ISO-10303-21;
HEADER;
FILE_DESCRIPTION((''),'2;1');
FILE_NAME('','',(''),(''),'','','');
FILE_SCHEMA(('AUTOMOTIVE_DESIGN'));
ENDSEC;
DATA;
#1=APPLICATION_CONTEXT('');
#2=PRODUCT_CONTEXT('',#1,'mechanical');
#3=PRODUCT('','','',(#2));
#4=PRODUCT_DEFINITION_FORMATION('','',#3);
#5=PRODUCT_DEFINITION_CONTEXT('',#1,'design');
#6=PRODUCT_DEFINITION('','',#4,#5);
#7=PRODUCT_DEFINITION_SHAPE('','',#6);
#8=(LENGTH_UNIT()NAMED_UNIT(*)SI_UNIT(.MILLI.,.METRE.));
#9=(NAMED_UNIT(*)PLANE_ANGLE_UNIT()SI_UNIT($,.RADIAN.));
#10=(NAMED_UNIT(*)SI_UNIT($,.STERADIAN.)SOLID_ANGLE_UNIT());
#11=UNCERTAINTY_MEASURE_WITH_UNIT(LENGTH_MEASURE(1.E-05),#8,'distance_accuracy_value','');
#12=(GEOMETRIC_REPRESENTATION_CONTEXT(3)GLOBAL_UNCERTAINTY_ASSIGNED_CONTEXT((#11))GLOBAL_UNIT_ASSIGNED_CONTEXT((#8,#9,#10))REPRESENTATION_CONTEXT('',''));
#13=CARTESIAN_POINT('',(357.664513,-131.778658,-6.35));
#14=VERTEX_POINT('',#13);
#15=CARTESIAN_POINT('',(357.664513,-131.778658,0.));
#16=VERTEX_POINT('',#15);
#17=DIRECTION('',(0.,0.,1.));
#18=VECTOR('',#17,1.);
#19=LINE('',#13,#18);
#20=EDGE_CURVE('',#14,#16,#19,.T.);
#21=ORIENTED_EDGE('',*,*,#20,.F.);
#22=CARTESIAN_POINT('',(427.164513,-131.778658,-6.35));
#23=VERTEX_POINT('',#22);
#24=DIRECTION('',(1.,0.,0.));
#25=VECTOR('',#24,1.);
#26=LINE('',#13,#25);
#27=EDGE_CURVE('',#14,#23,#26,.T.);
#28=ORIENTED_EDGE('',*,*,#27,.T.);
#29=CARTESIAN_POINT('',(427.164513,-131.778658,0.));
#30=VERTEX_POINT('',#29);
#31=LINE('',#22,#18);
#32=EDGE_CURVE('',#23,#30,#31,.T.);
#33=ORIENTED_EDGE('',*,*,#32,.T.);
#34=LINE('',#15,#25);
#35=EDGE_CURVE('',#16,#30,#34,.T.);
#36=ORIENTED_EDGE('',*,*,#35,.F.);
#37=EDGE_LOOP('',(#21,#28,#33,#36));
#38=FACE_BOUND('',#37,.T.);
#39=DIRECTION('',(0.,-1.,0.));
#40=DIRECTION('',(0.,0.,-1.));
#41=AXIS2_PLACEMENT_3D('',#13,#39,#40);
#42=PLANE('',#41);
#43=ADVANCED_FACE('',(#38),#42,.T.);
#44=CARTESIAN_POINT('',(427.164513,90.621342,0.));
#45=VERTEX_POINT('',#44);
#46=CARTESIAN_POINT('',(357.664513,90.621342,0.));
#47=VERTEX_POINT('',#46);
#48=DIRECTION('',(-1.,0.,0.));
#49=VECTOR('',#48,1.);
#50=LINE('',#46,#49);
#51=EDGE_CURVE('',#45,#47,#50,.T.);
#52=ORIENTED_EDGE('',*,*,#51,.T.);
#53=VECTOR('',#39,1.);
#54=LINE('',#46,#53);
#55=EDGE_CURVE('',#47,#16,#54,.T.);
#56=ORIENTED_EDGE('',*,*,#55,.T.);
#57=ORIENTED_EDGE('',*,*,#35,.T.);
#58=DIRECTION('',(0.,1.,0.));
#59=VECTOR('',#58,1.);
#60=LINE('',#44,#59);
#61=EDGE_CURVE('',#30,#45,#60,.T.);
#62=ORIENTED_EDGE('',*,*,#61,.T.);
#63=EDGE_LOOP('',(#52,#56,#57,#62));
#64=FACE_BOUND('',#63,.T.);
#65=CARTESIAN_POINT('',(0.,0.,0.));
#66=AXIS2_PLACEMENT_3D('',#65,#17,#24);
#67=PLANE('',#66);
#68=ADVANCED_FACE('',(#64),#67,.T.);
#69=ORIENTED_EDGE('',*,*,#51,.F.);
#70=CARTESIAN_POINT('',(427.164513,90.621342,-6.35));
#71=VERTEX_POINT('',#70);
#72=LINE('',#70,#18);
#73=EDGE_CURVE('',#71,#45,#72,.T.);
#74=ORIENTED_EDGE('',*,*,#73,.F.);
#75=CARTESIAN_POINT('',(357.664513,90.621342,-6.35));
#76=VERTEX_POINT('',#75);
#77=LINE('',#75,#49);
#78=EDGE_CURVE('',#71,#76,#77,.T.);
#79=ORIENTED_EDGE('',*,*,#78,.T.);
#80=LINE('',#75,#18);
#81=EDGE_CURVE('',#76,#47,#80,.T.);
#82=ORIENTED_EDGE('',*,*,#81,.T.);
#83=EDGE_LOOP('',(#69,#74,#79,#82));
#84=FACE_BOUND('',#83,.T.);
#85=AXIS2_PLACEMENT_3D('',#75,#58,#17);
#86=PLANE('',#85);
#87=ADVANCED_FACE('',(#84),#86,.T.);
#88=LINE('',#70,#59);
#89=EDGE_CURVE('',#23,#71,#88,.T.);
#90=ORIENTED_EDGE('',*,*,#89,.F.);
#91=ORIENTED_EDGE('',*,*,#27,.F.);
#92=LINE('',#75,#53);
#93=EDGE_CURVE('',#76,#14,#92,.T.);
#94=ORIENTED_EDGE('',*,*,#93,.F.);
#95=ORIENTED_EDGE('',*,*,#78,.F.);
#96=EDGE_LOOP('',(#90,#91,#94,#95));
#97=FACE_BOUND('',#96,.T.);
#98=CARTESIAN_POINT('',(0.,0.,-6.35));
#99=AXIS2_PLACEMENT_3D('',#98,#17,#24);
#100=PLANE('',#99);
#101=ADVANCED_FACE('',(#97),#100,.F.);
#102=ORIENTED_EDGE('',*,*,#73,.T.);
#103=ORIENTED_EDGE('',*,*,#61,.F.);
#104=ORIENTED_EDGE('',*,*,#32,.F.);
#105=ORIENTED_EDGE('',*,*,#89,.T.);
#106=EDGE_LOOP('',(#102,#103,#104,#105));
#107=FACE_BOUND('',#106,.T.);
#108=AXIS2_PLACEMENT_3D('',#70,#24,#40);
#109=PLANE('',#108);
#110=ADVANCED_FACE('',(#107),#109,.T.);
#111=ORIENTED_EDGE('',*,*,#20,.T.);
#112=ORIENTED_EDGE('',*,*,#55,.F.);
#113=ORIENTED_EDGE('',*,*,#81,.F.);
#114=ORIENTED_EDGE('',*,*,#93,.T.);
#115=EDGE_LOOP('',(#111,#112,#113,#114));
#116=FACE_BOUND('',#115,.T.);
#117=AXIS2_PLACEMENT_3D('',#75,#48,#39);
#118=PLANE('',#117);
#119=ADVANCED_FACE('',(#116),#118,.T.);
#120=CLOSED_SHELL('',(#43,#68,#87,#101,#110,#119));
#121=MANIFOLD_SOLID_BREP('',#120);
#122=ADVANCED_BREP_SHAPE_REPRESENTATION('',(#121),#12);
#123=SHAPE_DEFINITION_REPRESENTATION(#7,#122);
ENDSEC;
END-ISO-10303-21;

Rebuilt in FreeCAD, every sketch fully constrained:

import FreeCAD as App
import Part
import Sketcher

V = App.Vector

doc = App.newDocument("Part")
body = doc.addObject("PartDesign::Body", "Body")

# Sketch on XY plane
sketch1 = body.newObject("Sketcher::SketchObject", "Sketch")
sketch1.AttachmentSupport = (doc.getObject("XY_Plane"), [""])
sketch1.MapMode = "FlatFace"
sketch1.addGeometry([
    Part.LineSegment(V(357.664513, 90.621342, 0), V(357.664513, -131.778658, 0)),
    Part.LineSegment(V(357.664513, -131.778658, 0), V(427.164513, -131.778658, 0)),
    Part.LineSegment(V(427.164513, -131.778658, 0), V(427.164513, 90.621342, 0)),
    Part.LineSegment(V(427.164513, 90.621342, 0), V(357.664513, 90.621342, 0)),
], False)
sketch1.addConstraint([
    Sketcher.Constraint("Coincident", 0, 2, 1, 1),
    Sketcher.Constraint("Coincident", 1, 2, 2, 1),
    Sketcher.Constraint("Coincident", 2, 2, 3, 1),
    Sketcher.Constraint("Coincident", 3, 2, 0, 1),
    Sketcher.Constraint("Vertical", 0),
    Sketcher.Constraint("Horizontal", 1),
    Sketcher.Constraint("Vertical", 2),
    Sketcher.Constraint("Horizontal", 3),
    Sketcher.Constraint("DistanceX", 1, 1, 1, 2, 69.5),
    Sketcher.Constraint("DistanceY", 0, 2, 0, 1, 222.4),
    Sketcher.Constraint("DistanceY", 0, 2, -1, 1, 131.778658),
    Sketcher.Constraint("DistanceX", -1, 1, 0, 2, 357.664513),
])
pad1 = body.newObject("PartDesign::Pad", "Pad")
pad1.Profile = sketch1
pad1.Length = 6.35
pad1.Reversed = True

doc.recompute()
